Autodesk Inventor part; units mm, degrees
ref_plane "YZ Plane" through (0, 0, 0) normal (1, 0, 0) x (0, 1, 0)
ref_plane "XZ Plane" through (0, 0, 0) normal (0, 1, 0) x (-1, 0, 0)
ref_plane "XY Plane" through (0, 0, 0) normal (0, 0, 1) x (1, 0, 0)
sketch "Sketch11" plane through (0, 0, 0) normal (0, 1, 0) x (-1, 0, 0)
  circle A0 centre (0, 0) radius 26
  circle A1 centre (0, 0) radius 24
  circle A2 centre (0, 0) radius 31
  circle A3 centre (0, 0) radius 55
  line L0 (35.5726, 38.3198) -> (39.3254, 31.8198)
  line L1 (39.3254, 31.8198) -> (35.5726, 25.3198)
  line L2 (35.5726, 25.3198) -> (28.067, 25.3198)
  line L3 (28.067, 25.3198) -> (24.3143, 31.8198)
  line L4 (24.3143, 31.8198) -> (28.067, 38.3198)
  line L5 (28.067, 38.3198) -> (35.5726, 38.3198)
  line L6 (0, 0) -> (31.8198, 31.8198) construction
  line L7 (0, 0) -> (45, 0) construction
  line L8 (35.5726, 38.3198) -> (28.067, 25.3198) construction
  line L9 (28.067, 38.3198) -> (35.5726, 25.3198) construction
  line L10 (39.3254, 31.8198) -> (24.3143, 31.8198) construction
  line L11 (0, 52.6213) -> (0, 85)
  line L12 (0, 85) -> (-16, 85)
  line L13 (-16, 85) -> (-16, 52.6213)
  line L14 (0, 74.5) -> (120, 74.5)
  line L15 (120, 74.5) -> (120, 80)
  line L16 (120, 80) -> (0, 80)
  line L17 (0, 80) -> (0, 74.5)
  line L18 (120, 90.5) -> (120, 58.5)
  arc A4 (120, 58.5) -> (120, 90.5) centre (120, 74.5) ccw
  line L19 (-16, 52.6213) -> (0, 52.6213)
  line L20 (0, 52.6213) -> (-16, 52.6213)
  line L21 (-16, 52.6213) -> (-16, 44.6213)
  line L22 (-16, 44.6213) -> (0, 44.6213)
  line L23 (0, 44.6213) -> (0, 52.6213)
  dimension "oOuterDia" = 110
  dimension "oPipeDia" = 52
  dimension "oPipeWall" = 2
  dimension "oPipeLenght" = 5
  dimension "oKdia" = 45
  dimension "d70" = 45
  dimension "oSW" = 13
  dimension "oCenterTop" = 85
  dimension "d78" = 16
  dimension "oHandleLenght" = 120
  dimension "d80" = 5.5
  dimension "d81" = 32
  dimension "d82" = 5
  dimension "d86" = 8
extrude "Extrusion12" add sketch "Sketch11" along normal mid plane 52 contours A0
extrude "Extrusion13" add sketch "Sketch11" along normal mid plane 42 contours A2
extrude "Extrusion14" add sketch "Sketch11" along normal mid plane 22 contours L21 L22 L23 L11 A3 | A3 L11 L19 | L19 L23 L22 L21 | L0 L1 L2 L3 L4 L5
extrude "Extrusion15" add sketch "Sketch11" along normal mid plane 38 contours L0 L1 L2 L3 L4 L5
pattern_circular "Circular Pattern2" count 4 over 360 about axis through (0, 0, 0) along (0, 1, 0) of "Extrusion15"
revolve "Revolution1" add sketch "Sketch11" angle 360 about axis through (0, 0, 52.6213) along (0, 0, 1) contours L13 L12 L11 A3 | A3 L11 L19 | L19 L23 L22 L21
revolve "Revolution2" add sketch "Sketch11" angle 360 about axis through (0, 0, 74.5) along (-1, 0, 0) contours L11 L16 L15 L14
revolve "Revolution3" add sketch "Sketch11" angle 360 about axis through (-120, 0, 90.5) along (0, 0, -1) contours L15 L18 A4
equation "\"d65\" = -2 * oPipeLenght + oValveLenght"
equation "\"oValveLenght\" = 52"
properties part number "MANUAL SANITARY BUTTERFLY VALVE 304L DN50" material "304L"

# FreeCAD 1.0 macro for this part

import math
import FreeCAD as App
import Part
import Sketcher

V = App.Vector
Q = App.Units.Quantity


def add_polygon(sketch, points):
    """Adds a closed chain of lines whose ends are joined by coincident constraints."""
    first, n = sketch.GeometryCount, len(points)
    for a, b in zip(points, points[1:] + points[:1]):
        sketch.addGeometry(Part.LineSegment(App.Vector(*a, 0), App.Vector(*b, 0)), False)
    for i in range(n):
        sketch.addConstraint(Sketcher.Constraint("Coincident", first + i, 2, first + (i + 1) % n, 1))

doc = App.newDocument("Part")
body = doc.addObject("PartDesign::Body", "Body")

sketch1 = body.newObject("Sketcher::SketchObject", "Sketch")
sketch1.AttachmentSupport = (doc.getObject("XZ_Plane"), [""])
sketch1.MapMode = "FlatFace"
sketch1.addGeometry([
    Part.Circle(V(0, 0, 0), V(0, 0, 1), 26),
    Part.Circle(V(0, 0, 0), V(0, 0, 1), 24),
], False)
sketch1.addConstraint([
    Sketcher.Constraint("Coincident", 0, 3, -1, 1),
    Sketcher.Constraint("Coincident", 1, 3, -1, 1),
    Sketcher.Constraint("Diameter", 0, 52.0),
    Sketcher.Constraint("Diameter", 1, 48.0),
])
pad1 = body.newObject("PartDesign::Pad", "Pad")
pad1.Profile = sketch1
pad1.Length = 52
pad1.Midplane = True

sketch2 = body.newObject("Sketcher::SketchObject", "Sketch001")
sketch2.AttachmentSupport = (doc.getObject("XZ_Plane"), [""])
sketch2.MapMode = "FlatFace"
sketch2.addGeometry([
    Part.Circle(V(0, 0, 0), V(0, 0, 1), 31),
    Part.Circle(V(0, 0, 0), V(0, 0, 1), 26),
], False)
sketch2.addConstraint([
    Sketcher.Constraint("Coincident", 0, 3, -1, 1),
    Sketcher.Constraint("Coincident", 1, 3, -1, 1),
    Sketcher.Constraint("Diameter", 1, 52.0),
    Sketcher.Constraint("Diameter", 0, 62.0),
])
pad2 = body.newObject("PartDesign::Pad", "Pad001")
pad2.Profile = sketch2
pad2.Length = 42
pad2.Midplane = True

sketch3 = body.newObject("Sketcher::SketchObject", "Sketch002")
sketch3.AttachmentSupport = (doc.getObject("XZ_Plane"), [""])
sketch3.MapMode = "FlatFace"
sketch3.addGeometry([
    Part.Circle(V(0, 0, 0), V(0, 0, 1), 55),
    Part.Circle(V(0, 0, 0), V(0, 0, 1), 31),
], False)
sketch3.addConstraint([
    Sketcher.Constraint("Coincident", 0, 3, -1, 1),
    Sketcher.Constraint("Coincident", 1, 3, -1, 1),
    Sketcher.Constraint("Diameter", 0, 110.0),
    Sketcher.Constraint("Diameter", 1, 62.0),
])
pad3 = body.newObject("PartDesign::Pad", "Pad002")
pad3.Profile = sketch3
pad3.Length = 22
pad3.Midplane = True

sketch4 = body.newObject("Sketcher::SketchObject", "Sketch003")
sketch4.AttachmentSupport = (doc.getObject("XZ_Plane"), [""])
sketch4.MapMode = "FlatFace"
add_polygon(sketch4, [(-39, 32), (-36, 38), (-28, 38), (-24, 32), (-28, 25), (-36, 25)])
sketch4.addConstraint([
    Sketcher.Constraint("Horizontal", 1),
    Sketcher.Constraint("Horizontal", 4),
    Sketcher.Constraint("Parallel", 0, 3),
    Sketcher.Constraint("Parallel", 2, 5),
    Sketcher.Constraint("Horizontal", 2, 2, 5, 2),
    Sketcher.Constraint("Vertical", 1, 2, 3, 2),
    Sketcher.Constraint("Vertical", 0, 2, 4, 2),
    Sketcher.Constraint("Angle", 3, Q("-119.9995 deg")),
    Sketcher.Constraint("DistanceY", 3, 2, 1, 2, 13.0),
    Sketcher.Constraint("DistanceX", 1, 1, 1, 2, 7.5056),
    Sketcher.Constraint("DistanceX", 1, 2, -1, 1, 28.067),
    Sketcher.Constraint("DistanceY", -1, 1, 0, 2, 38.3198),
])
pad4 = body.newObject("PartDesign::Pad", "Pad003")
pad4.Profile = sketch4
pad4.Length = 38
pad4.Midplane = True
doc.recompute()

polarpattern = body.newObject("PartDesign::PolarPattern", "PolarPattern")
polarpattern.Originals = [pad4]
polarpattern.Axis = (doc.getObject("Y_Axis"), [""])
polarpattern.Angle = 360
polarpattern.Occurrences = 4
body.Tip = polarpattern

sketch5 = body.newObject("Sketcher::SketchObject", "Sketch004")
sketch5.AttachmentSupport = (doc.getObject("XZ_Plane"), [""])
sketch5.MapMode = "FlatFace"
add_polygon(sketch5, [(16, 85), (16, 45), (0, 45), (0, 85)])
sketch5.addConstraint([
    Sketcher.Constraint("Vertical", 0),
    Sketcher.Constraint("Horizontal", 1),
    Sketcher.Constraint("Vertical", 2),
    Sketcher.Constraint("Horizontal", 3),
    Sketcher.Constraint("PointOnObject", 1, 2, -2),
    Sketcher.Constraint("DistanceX", 1, 2, 1, 1, 16.0),
    Sketcher.Constraint("DistanceY", -1, 1, 2, 2, 85.0),
    Sketcher.Constraint("DistanceY", 0, 2, 0, 1, 40.3787),
])
revolution = body.newObject("PartDesign::Revolution", "Revolution")
revolution.Profile = sketch5
revolution.ReferenceAxis = (sketch5, ["V_Axis"])
revolution.Angle = 360

sketch6 = body.newObject("Sketcher::SketchObject", "Sketch005")
sketch6.AttachmentSupport = (doc.getObject("XZ_Plane"), [""])
sketch6.MapMode = "FlatFace"
add_polygon(sketch6, [(0, 80), (0, 74), (-120, 74), (-120, 80)])
sketch6.addGeometry(Part.LineSegment(V(0, 74, 0), V(-120, 74, 0)), True)
sketch6.addConstraint([
    Sketcher.Constraint("Vertical", 0),
    Sketcher.Constraint("Horizontal", 1),
    Sketcher.Constraint("Vertical", 2),
    Sketcher.Constraint("Horizontal", 3),
    Sketcher.Constraint("Horizontal", 4),
    Sketcher.Constraint("Coincident", 4, 1, 0, 2),
    Sketcher.Constraint("PointOnObject", 0, 2, -2),
    Sketcher.Constraint("Vertical", 2, 2, 4, 2),
    Sketcher.Constraint("DistanceX", 1, 2, 1, 1, 120.0),
    Sketcher.Constraint("DistanceY", 0, 2, 0, 1, 5.5),
    Sketcher.Constraint("DistanceY", -1, 1, 2, 2, 80.0),
])
revolution2 = body.newObject("PartDesign::Revolution", "Revolution001")
revolution2.Profile = sketch6
revolution2.ReferenceAxis = (sketch6, ["Axis0"])
revolution2.Angle = 360

sketch7 = body.newObject("Sketcher::SketchObject", "Sketch006")
sketch7.AttachmentSupport = (doc.getObject("XZ_Plane"), [""])
sketch7.MapMode = "FlatFace"
sketch7.addGeometry([
    Part.LineSegment(V(-120, 90, 0), V(-120, 58, 0)),
    Part.ArcOfCircle(Part.Circle(V(-120, 74, 0), V(0, 0, 1), 16), math.radians(90), math.radians(270)),
], False)
sketch7.addGeometry(Part.LineSegment(V(-120, 90, 0), V(-120, 58, 0)), True)
sketch7.addConstraint([
    Sketcher.Constraint("Coincident", 0, 1, 1, 1),
    Sketcher.Constraint("Coincident", 1, 2, 0, 2),
    Sketcher.Constraint("Vertical", 0),
    Sketcher.Constraint("Vertical", 2),
    Sketcher.Constraint("Coincident", 2, 1, 0, 1),
    Sketcher.Constraint("Vertical", 1, 3, 0, 1),
    Sketcher.Constraint("Equal", 0, 2),
    Sketcher.Constraint("Radius", 1, 16.0),
    Sketcher.Constraint("DistanceX", 1, 3, -1, 1, 120.0),
    Sketcher.Constraint("DistanceY", -1, 1, 1, 3, 74.5),
])
revolution3 = body.newObject("PartDesign::Revolution", "Revolution002")
revolution3.Profile = sketch7
revolution3.ReferenceAxis = (sketch7, ["Axis0"])
revolution3.Angle = 360

doc.recompute()
